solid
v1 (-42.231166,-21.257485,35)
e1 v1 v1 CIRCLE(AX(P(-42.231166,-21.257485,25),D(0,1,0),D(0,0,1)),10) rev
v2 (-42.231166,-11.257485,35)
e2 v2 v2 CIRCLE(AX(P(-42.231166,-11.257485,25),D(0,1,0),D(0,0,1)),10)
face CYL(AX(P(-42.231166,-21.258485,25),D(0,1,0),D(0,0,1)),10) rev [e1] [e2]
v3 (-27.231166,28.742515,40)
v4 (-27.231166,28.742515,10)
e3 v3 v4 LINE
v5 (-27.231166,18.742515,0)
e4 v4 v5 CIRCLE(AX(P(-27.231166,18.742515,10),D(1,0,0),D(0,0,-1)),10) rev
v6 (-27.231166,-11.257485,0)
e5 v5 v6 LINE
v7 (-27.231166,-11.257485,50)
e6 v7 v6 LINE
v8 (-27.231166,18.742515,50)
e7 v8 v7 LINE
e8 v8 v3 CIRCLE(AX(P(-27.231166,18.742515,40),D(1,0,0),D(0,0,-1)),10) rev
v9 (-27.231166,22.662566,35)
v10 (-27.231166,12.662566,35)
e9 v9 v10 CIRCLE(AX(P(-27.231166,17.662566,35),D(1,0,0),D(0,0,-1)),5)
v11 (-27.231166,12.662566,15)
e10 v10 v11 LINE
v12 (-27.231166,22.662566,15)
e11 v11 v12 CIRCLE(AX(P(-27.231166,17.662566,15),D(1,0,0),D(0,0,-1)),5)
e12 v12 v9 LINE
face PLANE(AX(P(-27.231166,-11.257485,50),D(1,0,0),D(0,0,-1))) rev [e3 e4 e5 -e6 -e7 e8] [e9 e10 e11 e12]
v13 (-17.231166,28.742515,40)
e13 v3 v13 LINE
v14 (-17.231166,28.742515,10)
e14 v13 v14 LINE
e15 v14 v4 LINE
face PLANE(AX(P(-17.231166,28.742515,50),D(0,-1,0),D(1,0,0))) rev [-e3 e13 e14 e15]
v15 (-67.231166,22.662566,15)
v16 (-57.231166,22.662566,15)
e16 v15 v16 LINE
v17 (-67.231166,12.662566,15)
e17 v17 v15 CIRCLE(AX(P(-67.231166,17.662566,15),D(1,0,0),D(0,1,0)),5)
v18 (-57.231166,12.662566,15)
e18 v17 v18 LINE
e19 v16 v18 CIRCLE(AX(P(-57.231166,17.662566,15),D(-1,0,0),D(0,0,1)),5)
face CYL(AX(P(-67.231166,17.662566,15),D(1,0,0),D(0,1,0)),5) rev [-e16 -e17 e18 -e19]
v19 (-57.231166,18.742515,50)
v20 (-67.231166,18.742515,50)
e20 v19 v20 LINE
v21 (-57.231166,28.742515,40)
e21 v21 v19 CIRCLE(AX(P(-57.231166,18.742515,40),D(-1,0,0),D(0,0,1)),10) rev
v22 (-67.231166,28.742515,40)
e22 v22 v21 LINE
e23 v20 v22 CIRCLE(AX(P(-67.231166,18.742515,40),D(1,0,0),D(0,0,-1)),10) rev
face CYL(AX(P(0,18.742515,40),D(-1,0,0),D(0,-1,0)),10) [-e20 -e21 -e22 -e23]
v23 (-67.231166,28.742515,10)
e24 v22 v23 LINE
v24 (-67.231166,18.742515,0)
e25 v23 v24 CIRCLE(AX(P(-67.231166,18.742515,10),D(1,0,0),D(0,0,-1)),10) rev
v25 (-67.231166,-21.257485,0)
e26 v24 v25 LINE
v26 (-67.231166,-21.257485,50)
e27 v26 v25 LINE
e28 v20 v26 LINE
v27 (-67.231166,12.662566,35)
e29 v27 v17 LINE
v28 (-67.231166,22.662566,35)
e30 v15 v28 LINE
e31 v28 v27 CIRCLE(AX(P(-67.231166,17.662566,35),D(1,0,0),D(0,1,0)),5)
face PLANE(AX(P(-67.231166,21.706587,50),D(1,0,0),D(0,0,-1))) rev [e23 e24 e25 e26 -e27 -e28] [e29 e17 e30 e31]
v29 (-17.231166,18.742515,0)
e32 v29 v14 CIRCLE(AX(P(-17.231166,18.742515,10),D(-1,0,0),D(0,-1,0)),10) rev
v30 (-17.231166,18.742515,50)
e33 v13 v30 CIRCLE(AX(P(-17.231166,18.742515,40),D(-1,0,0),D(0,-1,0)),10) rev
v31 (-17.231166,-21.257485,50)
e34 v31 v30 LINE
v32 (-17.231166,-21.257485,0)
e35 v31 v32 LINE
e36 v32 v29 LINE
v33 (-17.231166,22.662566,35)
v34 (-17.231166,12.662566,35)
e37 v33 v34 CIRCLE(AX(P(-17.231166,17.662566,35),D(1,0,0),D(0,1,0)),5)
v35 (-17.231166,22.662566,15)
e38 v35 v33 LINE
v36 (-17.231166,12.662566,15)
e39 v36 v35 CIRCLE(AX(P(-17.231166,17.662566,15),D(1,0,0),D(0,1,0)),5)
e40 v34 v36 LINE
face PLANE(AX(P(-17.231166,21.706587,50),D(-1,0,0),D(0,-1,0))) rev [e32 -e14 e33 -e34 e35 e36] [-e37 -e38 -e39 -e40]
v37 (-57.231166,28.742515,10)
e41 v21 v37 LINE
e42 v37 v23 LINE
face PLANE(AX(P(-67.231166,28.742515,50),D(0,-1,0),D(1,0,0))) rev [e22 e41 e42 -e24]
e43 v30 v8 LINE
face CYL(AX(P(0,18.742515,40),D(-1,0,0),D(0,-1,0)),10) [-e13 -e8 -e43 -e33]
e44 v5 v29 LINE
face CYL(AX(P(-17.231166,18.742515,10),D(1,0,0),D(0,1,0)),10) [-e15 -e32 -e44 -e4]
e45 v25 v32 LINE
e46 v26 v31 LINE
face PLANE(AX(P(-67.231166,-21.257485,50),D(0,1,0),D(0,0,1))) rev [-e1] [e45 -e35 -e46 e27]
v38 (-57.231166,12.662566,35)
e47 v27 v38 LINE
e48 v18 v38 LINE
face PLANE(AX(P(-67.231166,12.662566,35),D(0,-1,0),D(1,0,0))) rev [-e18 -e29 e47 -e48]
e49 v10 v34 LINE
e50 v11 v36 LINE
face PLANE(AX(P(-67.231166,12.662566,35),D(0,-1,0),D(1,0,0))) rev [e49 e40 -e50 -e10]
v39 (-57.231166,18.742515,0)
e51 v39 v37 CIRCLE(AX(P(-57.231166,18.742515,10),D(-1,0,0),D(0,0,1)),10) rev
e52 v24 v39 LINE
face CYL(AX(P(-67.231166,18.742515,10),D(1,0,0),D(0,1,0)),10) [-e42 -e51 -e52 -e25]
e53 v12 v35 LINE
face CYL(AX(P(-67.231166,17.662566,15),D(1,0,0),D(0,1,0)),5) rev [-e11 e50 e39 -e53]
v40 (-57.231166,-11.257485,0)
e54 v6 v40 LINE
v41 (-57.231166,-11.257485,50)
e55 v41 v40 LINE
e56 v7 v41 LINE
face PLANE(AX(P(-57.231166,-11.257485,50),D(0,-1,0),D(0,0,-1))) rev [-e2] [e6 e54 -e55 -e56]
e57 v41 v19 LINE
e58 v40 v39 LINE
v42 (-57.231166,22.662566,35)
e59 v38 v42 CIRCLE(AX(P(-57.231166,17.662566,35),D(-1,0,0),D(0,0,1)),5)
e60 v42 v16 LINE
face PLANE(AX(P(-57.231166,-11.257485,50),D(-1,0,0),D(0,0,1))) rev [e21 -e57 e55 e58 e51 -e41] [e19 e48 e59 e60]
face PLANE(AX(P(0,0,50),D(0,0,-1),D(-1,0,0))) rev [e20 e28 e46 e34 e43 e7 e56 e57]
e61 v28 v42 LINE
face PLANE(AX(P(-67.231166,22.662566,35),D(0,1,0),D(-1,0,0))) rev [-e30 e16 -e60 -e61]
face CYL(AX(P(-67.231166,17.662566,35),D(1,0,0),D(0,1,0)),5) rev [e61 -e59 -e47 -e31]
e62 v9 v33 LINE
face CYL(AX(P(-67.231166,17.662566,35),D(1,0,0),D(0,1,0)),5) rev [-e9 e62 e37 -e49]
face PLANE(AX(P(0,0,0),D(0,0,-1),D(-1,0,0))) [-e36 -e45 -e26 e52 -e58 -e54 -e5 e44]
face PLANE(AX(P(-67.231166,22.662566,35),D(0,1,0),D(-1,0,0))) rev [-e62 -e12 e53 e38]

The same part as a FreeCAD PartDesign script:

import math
import FreeCAD as App
import Part
import Sketcher
Q = App.Units.Quantity


def edges_at(feature, points):
    """Names of the edges that pass closest to the given points."""
    edges = feature.Shape.Edges
    near = lambda p: min(range(len(edges)), key=lambda i: edges[i].distToShape(Part.Vertex(*p))[0])
    return sorted({f"Edge{near(p) + 1}" for p in points})

doc = App.newDocument("Part")
params = doc.addObject("Spreadsheet::Sheet", "Params")
for row, (alias, value) in enumerate([
    ("sketch1_width", "30 mm"),
    ("sketch1_width2", "10 mm"),
    ("sketch1_height", "40 mm"),
    ("pad1_length", "50 mm"),
    ("sketch2_diameter", "20 mm"),
    ("sketch3_radius", "5 mm"),
    ("sketch3_height", "20 mm"),
    ("fillet_radius", "10 mm"),
    ("fillet2_radius", "10 mm"),
], start=1):
    params.set(f"A{row}", alias)
    params.set(f"B{row}", "=" + value)
    params.setAlias(f"B{row}", alias)

body = doc.addObject("PartDesign::Body", "Body")

# Sketch on XY plane
sketch1 = doc.addObject("Sketcher::SketchObject", "Sketch")
body.addObject(sketch1)
sketch1.AttachmentSupport = (doc.XY_Plane, [""])
sketch1.MapMode = "FlatFace"
sketch1.addGeometry([
    Part.LineSegment(App.Vector(-27, -11, 0), App.Vector(-57, -11, 0)),  # 0
    Part.LineSegment(App.Vector(-57, -11, 0), App.Vector(-57, 29, 0)),  # 1
    Part.LineSegment(App.Vector(-57, 29, 0), App.Vector(-67, 29, 0)),  # 2
    Part.LineSegment(App.Vector(-67, 29, 0), App.Vector(-67, -21, 0)),  # 3
    Part.LineSegment(App.Vector(-67, -21, 0), App.Vector(-17, -21, 0)),  # 4
    Part.LineSegment(App.Vector(-17, -21, 0), App.Vector(-17, 29, 0)),  # 5
    Part.LineSegment(App.Vector(-17, 29, 0), App.Vector(-27, 29, 0)),  # 6
    Part.LineSegment(App.Vector(-27, 29, 0), App.Vector(-27, -11, 0)),  # 7
], False)
sketch1.addConstraint([
    Sketcher.Constraint("Coincident", 0, 2, 1, 1),
    Sketcher.Constraint("Coincident", 1, 2, 2, 1),
    Sketcher.Constraint("Coincident", 2, 2, 3, 1),
    Sketcher.Constraint("Coincident", 3, 2, 4, 1),
    Sketcher.Constraint("Coincident", 4, 2, 5, 1),
    Sketcher.Constraint("Coincident", 5, 2, 6, 1),
    Sketcher.Constraint("Coincident", 6, 2, 7, 1),
    Sketcher.Constraint("Coincident", 7, 2, 0, 1),
    Sketcher.Constraint("Horizontal", 0),
    Sketcher.Constraint("Vertical", 1),
    Sketcher.Constraint("Horizontal", 2),
    Sketcher.Constraint("Vertical", 3),
    Sketcher.Constraint("Horizontal", 4),
    Sketcher.Constraint("Vertical", 5),
    Sketcher.Constraint("Horizontal", 6),
    Sketcher.Constraint("Vertical", 7),
    Sketcher.Constraint("Horizontal", 2, 2, 5, 2),
    Sketcher.Constraint("Equal", 2, 6),
    Sketcher.Constraint("Equal", 4, 3),
    Sketcher.Constraint("DistanceX", 0, 2, 0, 1, Q("30 mm")),
    Sketcher.Constraint("DistanceX", 2, 2, 2, 1, Q("10 mm")),
    Sketcher.Constraint("DistanceY", 1, 1, 1, 2, Q("40 mm")),
    Sketcher.Constraint("DistanceX", 0, 2, -1, 1, Q("57.231166 mm")),
    Sketcher.Constraint("DistanceY", 0, 2, -1, 1, Q("11.257485 mm")),
])
sketch1.setExpression("Constraints[19]", "Params.sketch1_width")
sketch1.setExpression("Constraints[20]", "Params.sketch1_width2")
sketch1.setExpression("Constraints[21]", "Params.sketch1_height")
pad1 = doc.addObject("PartDesign::Pad", "Pad")
body.addObject(pad1)
pad1.Profile = sketch1
pad1.setExpression("Length", "Params.pad1_length")

# Sketch on XZ plane
sketch2 = doc.addObject("Sketcher::SketchObject", "Sketch001")
body.addObject(sketch2)
sketch2.AttachmentSupport = (doc.XZ_Plane, [""])
sketch2.MapMode = "FlatFace"
sketch2.AttachmentOffset = App.Placement(App.Vector(0, 0, 11.257485), App.Rotation())
sketch2.addGeometry(Part.Circle(App.Vector(-42, 25, 0), App.Vector(0, 0, 1), 10), False)
sketch2.addConstraint([
    Sketcher.Constraint("Diameter", 0, Q("20 mm")),
    Sketcher.Constraint("DistanceY", -1, 1, 0, 3, Q("25 mm")),
    Sketcher.Constraint("DistanceX", 0, 3, -1, 1, Q("42.231166 mm")),
])
sketch2.setExpression("Constraints[0]", "Params.sketch2_diameter")
pocket1 = doc.addObject("PartDesign::Pocket", "Pocket")
body.addObject(pocket1)
pocket1.Profile = sketch2
pocket1.Type = "UpToFirst"
pocket1.Reversed = True

# Sketch on YZ plane
sketch3 = doc.addObject("Sketcher::SketchObject", "Sketch002")
body.addObject(sketch3)
sketch3.AttachmentSupport = (doc.YZ_Plane, [""])
sketch3.MapMode = "FlatFace"
sketch3.AttachmentOffset = App.Placement(App.Vector(0, 0, -17.231166), App.Rotation())
sketch3.addGeometry([
    Part.LineSegment(App.Vector(23, 15, 0), App.Vector(23, 35, 0)),
    Part.ArcOfCircle(Part.Circle(App.Vector(18, 35, 0), App.Vector(0, 0, 1), 5), math.radians(0), math.radians(180)),
    Part.LineSegment(App.Vector(13, 35, 0), App.Vector(13, 15, 0)),
    Part.ArcOfCircle(Part.Circle(App.Vector(18, 15, 0), App.Vector(0, 0, 1), 5), math.radians(180), math.radians(360)),
], False)
sketch3.addConstraint([
    Sketcher.Constraint("Tangent", 0, 2, 1, 1),
    Sketcher.Constraint("Tangent", 1, 2, 2, 1),
    Sketcher.Constraint("Tangent", 2, 2, 3, 1),
    Sketcher.Constraint("Tangent", 3, 2, 0, 1),
    Sketcher.Constraint("Vertical", 0),
    Sketcher.Constraint("Vertical", 2),
    Sketcher.Constraint("Radius", 1, Q("5 mm")),
    Sketcher.Constraint("DistanceY", 0, 1, 0, 2, Q("20 mm")),
    Sketcher.Constraint("DistanceY", -1, 1, 1, 3, Q("35 mm")),
    Sketcher.Constraint("DistanceX", -1, 1, 1, 3, Q("17.662566 mm")),
])
sketch3.setExpression("Constraints[6]", "Params.sketch3_radius")
sketch3.setExpression("Constraints[7]", "Params.sketch3_height")
pocket2 = doc.addObject("PartDesign::Pocket", "Pocket001")
body.addObject(pocket2)
pocket2.Profile = sketch3
pocket2.Type = "ThroughAll"
pocket2.Midplane = True
doc.recompute()

fillet = doc.addObject("PartDesign::Fillet", "Fillet")
body.addObject(fillet)
fillet.Base = (pocket2, edges_at(pocket2, [(-62.231, 28.743, 0), (-62.231, 28.743, 50)]))
fillet.setExpression("Radius", "Params.fillet_radius")
doc.recompute()

fillet2 = doc.addObject("PartDesign::Fillet", "Fillet001")
body.addObject(fillet2)
fillet2.Base = (fillet, edges_at(fillet, [(-22.231, 28.743, 0), (-22.231, 28.743, 50)]))
fillet2.setExpression("Radius", "Params.fillet2_radius")

doc.recompute()
